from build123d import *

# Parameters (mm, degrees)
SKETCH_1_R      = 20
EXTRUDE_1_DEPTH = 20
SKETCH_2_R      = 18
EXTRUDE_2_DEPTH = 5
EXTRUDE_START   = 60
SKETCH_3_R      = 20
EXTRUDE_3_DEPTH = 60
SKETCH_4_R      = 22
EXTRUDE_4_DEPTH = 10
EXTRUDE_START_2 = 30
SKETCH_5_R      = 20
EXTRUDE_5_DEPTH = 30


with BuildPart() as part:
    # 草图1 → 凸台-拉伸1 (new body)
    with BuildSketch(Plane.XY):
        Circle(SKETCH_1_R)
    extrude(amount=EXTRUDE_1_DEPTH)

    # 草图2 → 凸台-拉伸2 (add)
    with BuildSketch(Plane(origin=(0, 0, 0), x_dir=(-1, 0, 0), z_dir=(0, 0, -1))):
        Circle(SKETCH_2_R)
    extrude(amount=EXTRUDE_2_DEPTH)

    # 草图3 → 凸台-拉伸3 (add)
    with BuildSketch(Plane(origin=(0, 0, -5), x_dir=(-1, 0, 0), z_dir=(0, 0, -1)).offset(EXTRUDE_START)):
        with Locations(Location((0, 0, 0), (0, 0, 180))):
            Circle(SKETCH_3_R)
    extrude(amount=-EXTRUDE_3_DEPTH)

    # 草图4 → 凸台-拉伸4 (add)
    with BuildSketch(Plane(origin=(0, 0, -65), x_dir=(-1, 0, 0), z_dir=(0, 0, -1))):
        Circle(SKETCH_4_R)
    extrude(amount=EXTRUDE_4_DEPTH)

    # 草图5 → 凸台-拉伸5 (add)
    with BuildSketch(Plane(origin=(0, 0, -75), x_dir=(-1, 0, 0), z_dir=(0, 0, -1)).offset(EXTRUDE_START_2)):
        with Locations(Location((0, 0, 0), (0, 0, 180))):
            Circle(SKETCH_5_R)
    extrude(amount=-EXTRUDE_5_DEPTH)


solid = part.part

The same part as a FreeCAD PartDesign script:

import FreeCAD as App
import Part
import Sketcher
from FreeCAD import Vector
Q = App.Units.Quantity

doc = App.newDocument("Part")
body = doc.addObject("PartDesign::Body", "Body")

# Sketch on XY plane
sketch1 = body.newObject("Sketcher::SketchObject", "Sketch")
sketch1.AttachmentSupport = (doc.getObject("XY_Plane"), [""])
sketch1.MapMode = "FlatFace"
sketch1.addGeometry(Part.Circle(Vector(0, 0, 0), Vector(0, 0, 1), 20), False)
sketch1.addConstraint(Sketcher.Constraint("Coincident", 0, 3, -1, 1))
sketch1.addConstraint(Sketcher.Constraint("Diameter", 0, Q("40 mm")))
pad1 = body.newObject("PartDesign::Pad", "Pad")
pad1.Profile = sketch1
pad1.Length = 20

# Sketch on XY plane
sketch2 = body.newObject("Sketcher::SketchObject", "Sketch001")
sketch2.AttachmentSupport = (doc.getObject("XY_Plane"), [""])
sketch2.MapMode = "FlatFace"
sketch2.addGeometry(Part.Circle(Vector(0, 0, 0), Vector(0, 0, 1), 18), False)
sketch2.addConstraint(Sketcher.Constraint("Coincident", 0, 3, -1, 1))
sketch2.addConstraint(Sketcher.Constraint("Diameter", 0, Q("36 mm")))
pad2 = body.newObject("PartDesign::Pad", "Pad001")
pad2.Profile = sketch2
pad2.Length = 5
pad2.Reversed = True

# Sketch on XY plane
sketch3 = body.newObject("Sketcher::SketchObject", "Sketch002")
sketch3.AttachmentSupport = (doc.getObject("XY_Plane"), [""])
sketch3.MapMode = "FlatFace"
sketch3.AttachmentOffset = App.Placement(Vector(0, 0, -65), App.Rotation())
sketch3.addGeometry(Part.Circle(Vector(0, 0, 0), Vector(0, 0, 1), 20), False)
sketch3.addConstraint(Sketcher.Constraint("Coincident", 0, 3, -1, 1))
sketch3.addConstraint(Sketcher.Constraint("Diameter", 0, Q("40 mm")))
pad3 = body.newObject("PartDesign::Pad", "Pad002")
pad3.Profile = sketch3
pad3.Length = 60

# Sketch on XY plane
sketch4 = body.newObject("Sketcher::SketchObject", "Sketch003")
sketch4.AttachmentSupport = (doc.getObject("XY_Plane"), [""])
sketch4.MapMode = "FlatFace"
sketch4.AttachmentOffset = App.Placement(Vector(0, 0, -65), App.Rotation())
sketch4.addGeometry(Part.Circle(Vector(0, 0, 0), Vector(0, 0, 1), 22), False)
sketch4.addConstraint(Sketcher.Constraint("Coincident", 0, 3, -1, 1))
sketch4.addConstraint(Sketcher.Constraint("Diameter", 0, Q("44 mm")))
pad4 = body.newObject("PartDesign::Pad", "Pad003")
pad4.Profile = sketch4
pad4.Length = 10
pad4.Reversed = True

# Sketch on XY plane
sketch5 = body.newObject("Sketcher::SketchObject", "Sketch004")
sketch5.AttachmentSupport = (doc.getObject("XY_Plane"), [""])
sketch5.MapMode = "FlatFace"
sketch5.AttachmentOffset = App.Placement(Vector(0, 0, -105), App.Rotation())
sketch5.addGeometry(Part.Circle(Vector(0, 0, 0), Vector(0, 0, 1), 20), False)
sketch5.addConstraint(Sketcher.Constraint("Coincident", 0, 3, -1, 1))
sketch5.addConstraint(Sketcher.Constraint("Diameter", 0, Q("40 mm")))
pad5 = body.newObject("PartDesign::Pad", "Pad004")
pad5.Profile = sketch5
pad5.Length = 30

doc.recompute()
